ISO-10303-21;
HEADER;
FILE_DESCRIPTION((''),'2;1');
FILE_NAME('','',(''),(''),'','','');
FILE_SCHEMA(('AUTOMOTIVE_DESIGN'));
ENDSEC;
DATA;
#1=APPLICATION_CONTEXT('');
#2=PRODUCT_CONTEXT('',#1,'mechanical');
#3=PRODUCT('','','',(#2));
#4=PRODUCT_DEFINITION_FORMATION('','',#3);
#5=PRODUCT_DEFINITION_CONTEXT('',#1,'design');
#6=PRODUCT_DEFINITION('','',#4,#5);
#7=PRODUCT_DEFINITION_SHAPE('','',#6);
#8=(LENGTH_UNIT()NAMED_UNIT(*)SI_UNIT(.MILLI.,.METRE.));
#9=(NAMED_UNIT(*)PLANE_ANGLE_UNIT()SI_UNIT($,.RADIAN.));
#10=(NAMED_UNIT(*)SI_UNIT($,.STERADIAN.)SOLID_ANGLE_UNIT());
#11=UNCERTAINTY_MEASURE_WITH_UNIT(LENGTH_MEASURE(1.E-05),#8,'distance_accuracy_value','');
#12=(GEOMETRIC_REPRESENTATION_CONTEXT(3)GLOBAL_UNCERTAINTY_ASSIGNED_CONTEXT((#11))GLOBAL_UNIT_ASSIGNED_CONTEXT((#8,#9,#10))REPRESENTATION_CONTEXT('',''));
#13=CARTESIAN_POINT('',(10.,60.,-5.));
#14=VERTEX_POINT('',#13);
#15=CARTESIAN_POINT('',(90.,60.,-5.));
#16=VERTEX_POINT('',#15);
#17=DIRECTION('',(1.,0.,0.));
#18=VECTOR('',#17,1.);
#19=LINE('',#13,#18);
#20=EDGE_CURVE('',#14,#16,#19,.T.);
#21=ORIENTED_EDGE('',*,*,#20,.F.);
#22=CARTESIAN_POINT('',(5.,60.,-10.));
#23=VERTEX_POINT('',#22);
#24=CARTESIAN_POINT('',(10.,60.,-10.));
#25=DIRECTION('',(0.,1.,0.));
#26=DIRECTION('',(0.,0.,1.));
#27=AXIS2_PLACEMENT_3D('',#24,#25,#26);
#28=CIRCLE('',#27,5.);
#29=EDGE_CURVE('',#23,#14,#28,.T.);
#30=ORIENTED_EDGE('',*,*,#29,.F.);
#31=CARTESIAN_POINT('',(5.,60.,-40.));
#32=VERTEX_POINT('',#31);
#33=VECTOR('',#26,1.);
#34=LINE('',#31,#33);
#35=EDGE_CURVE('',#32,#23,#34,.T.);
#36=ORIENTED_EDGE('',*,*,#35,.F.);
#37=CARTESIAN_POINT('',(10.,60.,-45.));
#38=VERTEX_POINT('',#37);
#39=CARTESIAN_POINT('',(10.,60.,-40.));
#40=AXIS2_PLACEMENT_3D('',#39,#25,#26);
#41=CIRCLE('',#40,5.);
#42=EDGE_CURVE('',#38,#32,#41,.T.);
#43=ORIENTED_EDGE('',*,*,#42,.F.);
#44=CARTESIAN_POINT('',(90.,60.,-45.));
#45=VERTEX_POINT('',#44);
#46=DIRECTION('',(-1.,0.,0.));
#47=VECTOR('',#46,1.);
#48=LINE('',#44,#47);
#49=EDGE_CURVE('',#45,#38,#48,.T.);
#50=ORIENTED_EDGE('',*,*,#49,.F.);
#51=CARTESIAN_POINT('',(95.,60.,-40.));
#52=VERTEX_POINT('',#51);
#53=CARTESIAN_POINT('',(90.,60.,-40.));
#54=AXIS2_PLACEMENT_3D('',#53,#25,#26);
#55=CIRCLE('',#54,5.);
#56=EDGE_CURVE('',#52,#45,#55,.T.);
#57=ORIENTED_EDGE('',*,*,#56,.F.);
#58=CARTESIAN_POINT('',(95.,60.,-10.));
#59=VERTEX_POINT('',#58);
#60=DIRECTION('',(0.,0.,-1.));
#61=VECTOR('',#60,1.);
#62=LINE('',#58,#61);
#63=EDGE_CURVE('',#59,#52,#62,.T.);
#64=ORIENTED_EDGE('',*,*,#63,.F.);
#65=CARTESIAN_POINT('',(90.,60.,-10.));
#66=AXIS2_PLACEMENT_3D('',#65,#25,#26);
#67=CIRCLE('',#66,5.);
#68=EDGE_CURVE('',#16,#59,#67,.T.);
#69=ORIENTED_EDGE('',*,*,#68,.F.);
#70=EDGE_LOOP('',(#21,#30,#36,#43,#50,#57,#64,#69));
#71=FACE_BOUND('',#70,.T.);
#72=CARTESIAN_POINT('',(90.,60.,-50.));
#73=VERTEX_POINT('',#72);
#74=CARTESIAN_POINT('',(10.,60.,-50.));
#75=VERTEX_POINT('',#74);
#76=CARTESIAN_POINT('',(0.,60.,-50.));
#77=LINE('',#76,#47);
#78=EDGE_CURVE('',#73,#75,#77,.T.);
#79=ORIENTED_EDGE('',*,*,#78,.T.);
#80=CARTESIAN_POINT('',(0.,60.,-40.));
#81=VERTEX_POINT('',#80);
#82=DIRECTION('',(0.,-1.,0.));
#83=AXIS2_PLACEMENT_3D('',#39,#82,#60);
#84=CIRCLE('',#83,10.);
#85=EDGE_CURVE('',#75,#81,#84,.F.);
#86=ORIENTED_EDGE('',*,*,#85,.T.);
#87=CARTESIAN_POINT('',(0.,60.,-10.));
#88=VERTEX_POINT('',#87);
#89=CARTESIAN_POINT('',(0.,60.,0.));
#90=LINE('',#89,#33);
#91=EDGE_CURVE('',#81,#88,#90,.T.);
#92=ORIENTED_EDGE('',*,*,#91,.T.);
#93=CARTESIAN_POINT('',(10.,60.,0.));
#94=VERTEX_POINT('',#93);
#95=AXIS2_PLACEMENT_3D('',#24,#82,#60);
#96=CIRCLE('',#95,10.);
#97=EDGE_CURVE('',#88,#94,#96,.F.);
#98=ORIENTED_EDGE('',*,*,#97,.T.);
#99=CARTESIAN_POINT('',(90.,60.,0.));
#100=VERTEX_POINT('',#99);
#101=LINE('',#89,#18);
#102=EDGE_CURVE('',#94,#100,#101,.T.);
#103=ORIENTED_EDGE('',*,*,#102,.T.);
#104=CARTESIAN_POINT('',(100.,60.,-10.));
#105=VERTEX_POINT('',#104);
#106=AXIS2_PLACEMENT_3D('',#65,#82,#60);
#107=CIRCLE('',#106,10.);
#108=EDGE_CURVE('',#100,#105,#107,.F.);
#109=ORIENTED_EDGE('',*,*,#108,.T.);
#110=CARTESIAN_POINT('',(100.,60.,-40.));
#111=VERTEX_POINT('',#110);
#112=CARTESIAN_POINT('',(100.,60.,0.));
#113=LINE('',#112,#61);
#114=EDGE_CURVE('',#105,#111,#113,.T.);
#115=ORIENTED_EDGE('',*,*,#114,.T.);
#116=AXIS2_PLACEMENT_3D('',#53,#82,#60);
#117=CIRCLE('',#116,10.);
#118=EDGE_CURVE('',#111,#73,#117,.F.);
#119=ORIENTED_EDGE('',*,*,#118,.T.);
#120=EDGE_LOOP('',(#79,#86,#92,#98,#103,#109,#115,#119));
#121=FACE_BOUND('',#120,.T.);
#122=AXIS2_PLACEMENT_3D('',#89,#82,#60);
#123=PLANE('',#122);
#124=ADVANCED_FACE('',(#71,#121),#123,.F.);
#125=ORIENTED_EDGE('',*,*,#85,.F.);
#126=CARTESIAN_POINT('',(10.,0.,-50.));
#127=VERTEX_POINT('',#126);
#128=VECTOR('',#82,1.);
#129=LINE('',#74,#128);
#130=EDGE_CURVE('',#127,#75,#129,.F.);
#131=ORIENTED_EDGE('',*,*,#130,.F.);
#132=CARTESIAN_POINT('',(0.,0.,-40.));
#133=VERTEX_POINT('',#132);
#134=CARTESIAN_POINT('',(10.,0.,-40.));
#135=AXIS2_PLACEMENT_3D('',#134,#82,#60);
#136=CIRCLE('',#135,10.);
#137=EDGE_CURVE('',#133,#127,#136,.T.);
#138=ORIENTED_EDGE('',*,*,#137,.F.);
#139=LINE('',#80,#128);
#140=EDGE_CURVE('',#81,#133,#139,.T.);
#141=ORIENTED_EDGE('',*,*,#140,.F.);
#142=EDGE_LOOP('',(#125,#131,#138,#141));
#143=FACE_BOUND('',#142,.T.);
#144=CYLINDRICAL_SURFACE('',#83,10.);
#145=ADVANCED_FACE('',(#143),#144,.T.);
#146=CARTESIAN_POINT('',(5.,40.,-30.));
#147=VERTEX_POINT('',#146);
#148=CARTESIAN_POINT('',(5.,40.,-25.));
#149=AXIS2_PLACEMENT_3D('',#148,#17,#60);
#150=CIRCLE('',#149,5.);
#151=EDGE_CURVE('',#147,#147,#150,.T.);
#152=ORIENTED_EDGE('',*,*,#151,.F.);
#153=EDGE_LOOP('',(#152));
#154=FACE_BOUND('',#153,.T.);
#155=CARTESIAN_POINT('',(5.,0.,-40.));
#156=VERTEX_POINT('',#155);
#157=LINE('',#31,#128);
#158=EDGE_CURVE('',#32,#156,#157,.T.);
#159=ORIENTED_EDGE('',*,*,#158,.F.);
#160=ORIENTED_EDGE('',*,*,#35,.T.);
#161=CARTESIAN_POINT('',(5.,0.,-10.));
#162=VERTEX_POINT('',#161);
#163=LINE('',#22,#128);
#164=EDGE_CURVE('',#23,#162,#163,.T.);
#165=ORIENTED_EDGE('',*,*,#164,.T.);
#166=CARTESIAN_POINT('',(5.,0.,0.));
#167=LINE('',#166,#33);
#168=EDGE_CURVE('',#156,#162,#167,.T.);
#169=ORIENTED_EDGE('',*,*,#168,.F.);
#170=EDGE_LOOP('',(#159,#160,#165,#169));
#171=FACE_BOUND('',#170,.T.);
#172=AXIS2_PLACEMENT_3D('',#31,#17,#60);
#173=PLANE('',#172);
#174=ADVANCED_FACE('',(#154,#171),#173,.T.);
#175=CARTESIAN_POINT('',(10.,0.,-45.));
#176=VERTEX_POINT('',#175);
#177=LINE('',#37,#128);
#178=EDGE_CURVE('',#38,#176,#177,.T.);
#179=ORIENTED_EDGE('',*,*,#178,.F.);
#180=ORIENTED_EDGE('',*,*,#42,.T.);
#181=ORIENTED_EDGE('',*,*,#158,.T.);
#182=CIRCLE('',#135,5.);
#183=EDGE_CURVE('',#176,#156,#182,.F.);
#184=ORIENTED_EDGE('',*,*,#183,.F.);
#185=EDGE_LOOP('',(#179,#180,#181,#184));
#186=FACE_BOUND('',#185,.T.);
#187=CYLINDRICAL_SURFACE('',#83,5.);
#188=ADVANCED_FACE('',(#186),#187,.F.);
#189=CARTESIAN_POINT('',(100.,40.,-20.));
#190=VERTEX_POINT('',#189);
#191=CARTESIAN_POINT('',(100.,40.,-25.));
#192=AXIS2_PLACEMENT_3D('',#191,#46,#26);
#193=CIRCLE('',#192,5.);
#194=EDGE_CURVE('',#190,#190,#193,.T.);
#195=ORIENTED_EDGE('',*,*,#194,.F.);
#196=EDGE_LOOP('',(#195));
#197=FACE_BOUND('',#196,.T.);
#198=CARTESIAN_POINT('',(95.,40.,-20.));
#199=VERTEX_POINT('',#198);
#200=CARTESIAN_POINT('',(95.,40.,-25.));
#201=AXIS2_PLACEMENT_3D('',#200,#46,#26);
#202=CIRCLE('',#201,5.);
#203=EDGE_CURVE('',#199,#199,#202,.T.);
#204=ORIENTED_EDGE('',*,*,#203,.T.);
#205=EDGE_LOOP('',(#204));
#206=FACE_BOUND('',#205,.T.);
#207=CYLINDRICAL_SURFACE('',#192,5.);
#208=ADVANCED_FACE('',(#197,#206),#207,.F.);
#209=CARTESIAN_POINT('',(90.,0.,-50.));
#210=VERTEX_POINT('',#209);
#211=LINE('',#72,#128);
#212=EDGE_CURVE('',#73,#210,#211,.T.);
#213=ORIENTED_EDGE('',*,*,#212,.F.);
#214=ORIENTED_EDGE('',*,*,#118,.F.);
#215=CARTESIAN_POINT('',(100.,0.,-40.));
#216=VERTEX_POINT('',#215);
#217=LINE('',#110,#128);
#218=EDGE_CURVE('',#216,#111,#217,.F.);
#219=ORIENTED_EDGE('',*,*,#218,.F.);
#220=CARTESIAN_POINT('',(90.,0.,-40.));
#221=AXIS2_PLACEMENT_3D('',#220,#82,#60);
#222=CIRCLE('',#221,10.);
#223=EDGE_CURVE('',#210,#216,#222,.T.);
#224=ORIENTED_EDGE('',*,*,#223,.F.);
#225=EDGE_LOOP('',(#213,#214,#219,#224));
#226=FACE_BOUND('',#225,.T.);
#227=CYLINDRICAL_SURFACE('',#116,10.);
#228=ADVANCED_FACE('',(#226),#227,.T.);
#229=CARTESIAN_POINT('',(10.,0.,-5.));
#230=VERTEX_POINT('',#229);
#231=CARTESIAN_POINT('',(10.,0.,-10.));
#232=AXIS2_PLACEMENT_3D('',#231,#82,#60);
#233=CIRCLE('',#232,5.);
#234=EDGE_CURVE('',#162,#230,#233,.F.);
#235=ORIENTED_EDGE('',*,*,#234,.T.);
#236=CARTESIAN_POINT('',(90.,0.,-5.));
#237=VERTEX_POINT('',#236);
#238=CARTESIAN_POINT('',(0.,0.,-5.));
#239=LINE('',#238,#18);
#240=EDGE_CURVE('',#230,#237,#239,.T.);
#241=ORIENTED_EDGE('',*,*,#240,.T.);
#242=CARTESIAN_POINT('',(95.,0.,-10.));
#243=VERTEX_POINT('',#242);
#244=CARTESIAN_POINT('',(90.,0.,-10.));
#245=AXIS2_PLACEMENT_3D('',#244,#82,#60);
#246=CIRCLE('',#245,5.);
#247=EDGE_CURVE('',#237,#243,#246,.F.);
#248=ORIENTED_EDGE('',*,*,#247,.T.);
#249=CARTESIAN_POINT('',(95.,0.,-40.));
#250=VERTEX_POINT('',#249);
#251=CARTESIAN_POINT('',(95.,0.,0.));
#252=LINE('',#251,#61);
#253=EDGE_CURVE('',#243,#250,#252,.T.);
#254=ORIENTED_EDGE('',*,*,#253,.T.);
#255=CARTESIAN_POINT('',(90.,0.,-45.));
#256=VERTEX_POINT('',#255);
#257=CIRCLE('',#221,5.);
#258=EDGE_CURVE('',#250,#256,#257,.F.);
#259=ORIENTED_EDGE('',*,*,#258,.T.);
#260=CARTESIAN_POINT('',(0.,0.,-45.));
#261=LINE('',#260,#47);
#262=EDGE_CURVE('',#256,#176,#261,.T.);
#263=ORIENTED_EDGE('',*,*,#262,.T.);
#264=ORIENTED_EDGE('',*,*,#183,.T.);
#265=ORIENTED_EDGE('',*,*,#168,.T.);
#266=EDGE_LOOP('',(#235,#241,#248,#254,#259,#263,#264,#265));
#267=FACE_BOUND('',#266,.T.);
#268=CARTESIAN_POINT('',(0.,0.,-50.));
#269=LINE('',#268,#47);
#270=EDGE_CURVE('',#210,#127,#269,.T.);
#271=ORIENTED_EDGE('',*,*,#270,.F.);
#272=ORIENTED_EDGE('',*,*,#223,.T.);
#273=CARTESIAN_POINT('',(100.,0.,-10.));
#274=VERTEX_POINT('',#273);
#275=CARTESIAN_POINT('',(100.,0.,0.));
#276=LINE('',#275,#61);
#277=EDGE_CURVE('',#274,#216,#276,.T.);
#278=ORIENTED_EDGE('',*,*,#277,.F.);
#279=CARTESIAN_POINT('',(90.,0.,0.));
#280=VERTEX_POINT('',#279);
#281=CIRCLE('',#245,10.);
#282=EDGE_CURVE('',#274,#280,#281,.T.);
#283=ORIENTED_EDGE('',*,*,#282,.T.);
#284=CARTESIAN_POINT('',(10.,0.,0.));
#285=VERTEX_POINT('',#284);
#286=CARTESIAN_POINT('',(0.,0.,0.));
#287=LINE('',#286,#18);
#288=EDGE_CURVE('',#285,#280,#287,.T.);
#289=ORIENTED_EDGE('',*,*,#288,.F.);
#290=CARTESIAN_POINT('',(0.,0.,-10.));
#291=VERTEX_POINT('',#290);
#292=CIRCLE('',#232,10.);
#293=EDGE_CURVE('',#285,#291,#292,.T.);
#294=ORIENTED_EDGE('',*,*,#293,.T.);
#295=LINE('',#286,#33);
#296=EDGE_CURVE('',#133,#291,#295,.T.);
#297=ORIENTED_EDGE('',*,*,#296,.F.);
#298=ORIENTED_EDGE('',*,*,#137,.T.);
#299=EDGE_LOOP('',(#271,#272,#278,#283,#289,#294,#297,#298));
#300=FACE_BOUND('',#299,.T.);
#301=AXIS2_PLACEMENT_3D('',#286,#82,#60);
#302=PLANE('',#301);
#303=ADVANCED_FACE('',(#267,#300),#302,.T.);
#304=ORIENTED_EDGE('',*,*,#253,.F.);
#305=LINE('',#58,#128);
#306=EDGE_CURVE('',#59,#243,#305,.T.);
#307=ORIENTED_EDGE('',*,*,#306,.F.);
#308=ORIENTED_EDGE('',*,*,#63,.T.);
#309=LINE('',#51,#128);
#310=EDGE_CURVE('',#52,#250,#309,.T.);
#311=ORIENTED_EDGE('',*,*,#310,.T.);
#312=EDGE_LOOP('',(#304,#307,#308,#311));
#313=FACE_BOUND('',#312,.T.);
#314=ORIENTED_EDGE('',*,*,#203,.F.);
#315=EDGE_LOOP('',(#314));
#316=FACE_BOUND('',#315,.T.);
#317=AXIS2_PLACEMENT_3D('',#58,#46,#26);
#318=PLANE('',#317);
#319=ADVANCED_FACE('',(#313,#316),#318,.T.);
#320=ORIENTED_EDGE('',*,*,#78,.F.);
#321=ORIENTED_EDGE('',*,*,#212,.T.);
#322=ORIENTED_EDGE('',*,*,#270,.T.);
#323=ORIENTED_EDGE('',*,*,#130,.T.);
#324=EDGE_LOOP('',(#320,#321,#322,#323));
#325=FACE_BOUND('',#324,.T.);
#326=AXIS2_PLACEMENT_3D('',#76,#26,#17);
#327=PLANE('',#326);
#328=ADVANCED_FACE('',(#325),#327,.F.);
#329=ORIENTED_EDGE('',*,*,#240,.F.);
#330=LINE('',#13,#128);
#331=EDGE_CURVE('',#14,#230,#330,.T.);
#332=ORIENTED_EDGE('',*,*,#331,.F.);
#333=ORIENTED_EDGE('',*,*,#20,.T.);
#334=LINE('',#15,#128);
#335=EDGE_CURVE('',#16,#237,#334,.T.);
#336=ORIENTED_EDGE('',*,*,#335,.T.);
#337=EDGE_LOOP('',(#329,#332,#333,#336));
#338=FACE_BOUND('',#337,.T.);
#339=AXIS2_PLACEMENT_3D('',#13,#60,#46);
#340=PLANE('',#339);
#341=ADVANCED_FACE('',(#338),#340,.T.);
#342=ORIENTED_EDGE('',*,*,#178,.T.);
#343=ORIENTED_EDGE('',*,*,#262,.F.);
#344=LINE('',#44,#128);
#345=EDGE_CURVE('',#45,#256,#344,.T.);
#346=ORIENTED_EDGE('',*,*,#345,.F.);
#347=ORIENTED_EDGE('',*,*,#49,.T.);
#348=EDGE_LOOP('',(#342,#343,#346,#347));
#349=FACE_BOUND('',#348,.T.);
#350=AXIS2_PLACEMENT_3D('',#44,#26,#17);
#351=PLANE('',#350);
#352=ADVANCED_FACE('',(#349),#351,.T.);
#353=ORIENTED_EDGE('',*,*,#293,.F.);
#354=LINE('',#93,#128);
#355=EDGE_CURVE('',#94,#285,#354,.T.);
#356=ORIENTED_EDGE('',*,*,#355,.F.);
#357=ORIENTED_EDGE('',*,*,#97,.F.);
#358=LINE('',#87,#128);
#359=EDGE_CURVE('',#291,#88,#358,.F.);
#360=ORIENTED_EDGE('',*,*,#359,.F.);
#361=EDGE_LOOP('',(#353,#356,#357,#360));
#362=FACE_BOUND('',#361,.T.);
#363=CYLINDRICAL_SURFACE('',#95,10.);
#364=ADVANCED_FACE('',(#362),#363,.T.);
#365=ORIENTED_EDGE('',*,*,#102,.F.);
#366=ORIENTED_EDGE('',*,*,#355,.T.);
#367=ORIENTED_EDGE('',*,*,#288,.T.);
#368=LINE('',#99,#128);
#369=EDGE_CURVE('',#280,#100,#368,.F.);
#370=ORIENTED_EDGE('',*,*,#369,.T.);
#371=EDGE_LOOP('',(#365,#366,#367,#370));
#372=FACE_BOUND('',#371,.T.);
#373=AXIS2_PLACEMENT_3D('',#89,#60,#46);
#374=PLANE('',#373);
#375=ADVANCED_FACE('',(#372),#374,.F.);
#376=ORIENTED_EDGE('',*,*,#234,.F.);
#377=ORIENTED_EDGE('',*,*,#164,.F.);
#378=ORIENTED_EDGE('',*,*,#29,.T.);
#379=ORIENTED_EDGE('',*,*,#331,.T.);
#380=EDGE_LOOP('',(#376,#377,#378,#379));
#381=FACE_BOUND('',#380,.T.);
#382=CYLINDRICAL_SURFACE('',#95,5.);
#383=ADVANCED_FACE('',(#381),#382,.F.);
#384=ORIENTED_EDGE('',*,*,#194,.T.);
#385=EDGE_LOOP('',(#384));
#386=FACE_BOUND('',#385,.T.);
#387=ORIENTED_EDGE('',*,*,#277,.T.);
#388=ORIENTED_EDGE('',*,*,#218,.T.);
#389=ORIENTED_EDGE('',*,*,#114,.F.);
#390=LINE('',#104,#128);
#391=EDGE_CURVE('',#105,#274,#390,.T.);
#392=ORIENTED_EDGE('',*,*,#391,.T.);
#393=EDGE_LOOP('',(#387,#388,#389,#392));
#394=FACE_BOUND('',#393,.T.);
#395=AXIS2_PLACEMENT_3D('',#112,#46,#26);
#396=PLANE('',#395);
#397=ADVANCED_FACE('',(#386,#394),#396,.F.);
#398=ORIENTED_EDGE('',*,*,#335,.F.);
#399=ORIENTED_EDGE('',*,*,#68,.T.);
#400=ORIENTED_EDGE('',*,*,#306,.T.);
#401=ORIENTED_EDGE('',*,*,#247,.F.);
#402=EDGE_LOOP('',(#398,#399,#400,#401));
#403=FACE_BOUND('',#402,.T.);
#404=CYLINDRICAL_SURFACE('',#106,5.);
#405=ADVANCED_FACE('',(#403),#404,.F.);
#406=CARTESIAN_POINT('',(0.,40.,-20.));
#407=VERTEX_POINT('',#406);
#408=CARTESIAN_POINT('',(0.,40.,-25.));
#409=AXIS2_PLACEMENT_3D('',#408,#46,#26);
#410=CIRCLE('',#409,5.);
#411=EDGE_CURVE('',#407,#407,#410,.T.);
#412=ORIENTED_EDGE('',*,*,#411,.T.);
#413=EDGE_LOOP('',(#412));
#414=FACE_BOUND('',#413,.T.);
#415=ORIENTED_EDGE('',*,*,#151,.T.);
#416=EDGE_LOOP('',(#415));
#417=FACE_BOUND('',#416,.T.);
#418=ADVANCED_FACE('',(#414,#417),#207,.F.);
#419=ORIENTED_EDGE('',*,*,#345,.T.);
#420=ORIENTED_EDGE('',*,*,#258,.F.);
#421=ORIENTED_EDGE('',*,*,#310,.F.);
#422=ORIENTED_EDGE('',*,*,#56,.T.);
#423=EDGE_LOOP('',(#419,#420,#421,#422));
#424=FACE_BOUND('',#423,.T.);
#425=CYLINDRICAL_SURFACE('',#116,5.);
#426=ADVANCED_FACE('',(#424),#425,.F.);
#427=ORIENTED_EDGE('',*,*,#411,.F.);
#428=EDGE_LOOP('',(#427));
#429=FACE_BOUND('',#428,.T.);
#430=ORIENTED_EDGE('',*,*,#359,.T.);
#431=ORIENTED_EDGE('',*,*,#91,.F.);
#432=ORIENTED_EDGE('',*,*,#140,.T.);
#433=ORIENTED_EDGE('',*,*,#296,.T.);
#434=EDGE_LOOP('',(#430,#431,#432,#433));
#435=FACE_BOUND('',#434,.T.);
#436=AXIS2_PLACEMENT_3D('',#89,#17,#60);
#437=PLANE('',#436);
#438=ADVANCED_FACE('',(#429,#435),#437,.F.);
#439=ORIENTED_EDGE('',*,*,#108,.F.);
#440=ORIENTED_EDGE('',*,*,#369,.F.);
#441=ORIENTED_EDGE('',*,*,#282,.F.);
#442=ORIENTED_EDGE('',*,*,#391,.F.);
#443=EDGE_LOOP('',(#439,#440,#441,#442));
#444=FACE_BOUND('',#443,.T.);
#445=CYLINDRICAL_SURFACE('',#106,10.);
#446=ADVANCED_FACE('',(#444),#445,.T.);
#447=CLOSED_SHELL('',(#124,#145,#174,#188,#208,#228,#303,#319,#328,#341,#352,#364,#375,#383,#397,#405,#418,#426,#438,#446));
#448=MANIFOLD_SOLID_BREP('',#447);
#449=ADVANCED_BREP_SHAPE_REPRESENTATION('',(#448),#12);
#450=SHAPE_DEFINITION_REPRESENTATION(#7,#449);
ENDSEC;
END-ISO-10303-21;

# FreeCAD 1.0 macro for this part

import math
import FreeCAD as App
import Part
import Sketcher
from FreeCAD import Vector


def edges_at(feature, points):
    """Names of the edges that pass closest to the given points."""
    edges = feature.Shape.Edges
    near = lambda p: min(range(len(edges)), key=lambda i: edges[i].distToShape(Part.Vertex(*p))[0])
    return sorted({f"Edge{near(p) + 1}" for p in points})


def add_polygon(sketch, points):
    """Adds a closed chain of lines whose ends are joined by coincident constraints."""
    first, n = sketch.GeometryCount, len(points)
    for a, b in zip(points, points[1:] + points[:1]):
        sketch.addGeometry(Part.LineSegment(App.Vector(*a, 0), App.Vector(*b, 0)), False)
    for i in range(n):
        sketch.addConstraint(Sketcher.Constraint("Coincident", first + i, 2, first + (i + 1) % n, 1))

doc = App.newDocument("Part")
body = doc.addObject("PartDesign::Body", "Body")

# Sketch on XZ plane
sketch1 = doc.addObject("Sketcher::SketchObject", "Sketch")
body.addObject(sketch1)
sketch1.AttachmentSupport = (doc.XZ_Plane, [""])
sketch1.MapMode = "FlatFace"
add_polygon(sketch1, [(0, -50), (0, 0), (100, 0), (100, -50)])  # lines 0-3
sketch1.addConstraint(Sketcher.Constraint("Vertical", 0))
sketch1.addConstraint(Sketcher.Constraint("Horizontal", 1))
sketch1.addConstraint(Sketcher.Constraint("Vertical", 2))
sketch1.addConstraint(Sketcher.Constraint("Horizontal", 3))
sketch1.addConstraint(Sketcher.Constraint("Coincident", 0, 2, -1, 1))
sketch1.addConstraint(Sketcher.Constraint("DistanceX", 1, 1, 1, 2, 100.0))
sketch1.addConstraint(Sketcher.Constraint("DistanceY", 0, 1, 0, 2, 50.0))
pad1 = doc.addObject("PartDesign::Pad", "Pad")
body.addObject(pad1)
pad1.Profile = sketch1
pad1.Length = 60
pad1.Reversed = True
doc.recompute()

fillet = doc.addObject("PartDesign::Fillet", "Fillet")
body.addObject(fillet)
fillet.Base = (pad1, edges_at(pad1, [
    (0, 30, -50),
    (100, 30, -50),
    (100, 30, 0),
    (0, 30, 0),
]))
fillet.Radius = 10

# Sketch on XZ plane
sketch2 = doc.addObject("Sketcher::SketchObject", "Sketch001")
body.addObject(sketch2)
sketch2.AttachmentSupport = (doc.XZ_Plane, [""])
sketch2.MapMode = "FlatFace"
sketch2.AttachmentOffset = App.Placement(Vector(0, 0, -60), App.Rotation())
sketch2.addGeometry(Part.LineSegment(Vector(10, -5, 0), Vector(90, -5, 0)), False)
sketch2.addGeometry(Part.ArcOfCircle(Part.Circle(Vector(90, -10, 0), Vector(0, 0, 1), 5), math.radians(0), math.radians(90)), False)
sketch2.addGeometry(Part.LineSegment(Vector(95, -10, 0), Vector(95, -40, 0)), False)
sketch2.addGeometry(Part.ArcOfCircle(Part.Circle(Vector(90, -40, 0), Vector(0, 0, 1), 5), math.radians(-90), math.radians(0)), False)
sketch2.addGeometry(Part.LineSegment(Vector(90, -45, 0), Vector(10, -45, 0)), False)
sketch2.addGeometry(Part.ArcOfCircle(Part.Circle(Vector(10, -40, 0), Vector(0, 0, 1), 5), math.radians(180), math.radians(270)), False)
sketch2.addGeometry(Part.LineSegment(Vector(5, -40, 0), Vector(5, -10, 0)), False)
sketch2.addGeometry(Part.ArcOfCircle(Part.Circle(Vector(10, -10, 0), Vector(0, 0, 1), 5), math.radians(90), math.radians(180)), False)
sketch2.addConstraint(Sketcher.Constraint("Tangent", 0, 2, 1, 2))
sketch2.addConstraint(Sketcher.Constraint("Tangent", 1, 1, 2, 1))
sketch2.addConstraint(Sketcher.Constraint("Tangent", 2, 2, 3, 2))
sketch2.addConstraint(Sketcher.Constraint("Tangent", 3, 1, 4, 1))
sketch2.addConstraint(Sketcher.Constraint("Tangent", 4, 2, 5, 2))
sketch2.addConstraint(Sketcher.Constraint("Tangent", 5, 1, 6, 1))
sketch2.addConstraint(Sketcher.Constraint("Tangent", 6, 2, 7, 2))
sketch2.addConstraint(Sketcher.Constraint("Tangent", 7, 1, 0, 1))
sketch2.addConstraint(Sketcher.Constraint("Horizontal", 0))
sketch2.addConstraint(Sketcher.Constraint("Vertical", 2))
sketch2.addConstraint(Sketcher.Constraint("Horizontal", 4))
sketch2.addConstraint(Sketcher.Constraint("Vertical", 6))
sketch2.addConstraint(Sketcher.Constraint("Equal", 1, 3))
sketch2.addConstraint(Sketcher.Constraint("Equal", 3, 5))
sketch2.addConstraint(Sketcher.Constraint("Equal", 5, 7))
sketch2.addConstraint(Sketcher.Constraint("Radius", 1, 5.0))
sketch2.addConstraint(Sketcher.Constraint("DistanceX", 0, 1, 0, 2, 80.0))
sketch2.addConstraint(Sketcher.Constraint("DistanceY", 2, 2, 2, 1, 30.0))
sketch2.addConstraint(Sketcher.Constraint("DistanceX", -1, 1, 1, 3, 90.0))
sketch2.addConstraint(Sketcher.Constraint("DistanceY", 1, 3, -1, 1, 10.0))
pocket1 = doc.addObject("PartDesign::Pocket", "Pocket")
body.addObject(pocket1)
pocket1.Profile = sketch2
pocket1.Length = 80
pocket1.Reversed = True

# Sketch on YZ plane
sketch3 = doc.addObject("Sketcher::SketchObject", "Sketch002")
body.addObject(sketch3)
sketch3.AttachmentSupport = (doc.YZ_Plane, [""])
sketch3.MapMode = "FlatFace"
sketch3.addGeometry(Part.Circle(Vector(40, -25, 0), Vector(0, 0, 1), 5), False)
sketch3.addConstraint(Sketcher.Constraint("Diameter", 0, 10.0))
sketch3.addConstraint(Sketcher.Constraint("DistanceX", -1, 1, 0, 3, 40.0))
sketch3.addConstraint(Sketcher.Constraint("DistanceY", 0, 3, -1, 1, 25.0))
pocket2 = doc.addObject("PartDesign::Pocket", "Pocket001")
body.addObject(pocket2)
pocket2.Profile = sketch3
pocket2.Type = "ThroughAll"
pocket2.Reversed = True

doc.recompute()
